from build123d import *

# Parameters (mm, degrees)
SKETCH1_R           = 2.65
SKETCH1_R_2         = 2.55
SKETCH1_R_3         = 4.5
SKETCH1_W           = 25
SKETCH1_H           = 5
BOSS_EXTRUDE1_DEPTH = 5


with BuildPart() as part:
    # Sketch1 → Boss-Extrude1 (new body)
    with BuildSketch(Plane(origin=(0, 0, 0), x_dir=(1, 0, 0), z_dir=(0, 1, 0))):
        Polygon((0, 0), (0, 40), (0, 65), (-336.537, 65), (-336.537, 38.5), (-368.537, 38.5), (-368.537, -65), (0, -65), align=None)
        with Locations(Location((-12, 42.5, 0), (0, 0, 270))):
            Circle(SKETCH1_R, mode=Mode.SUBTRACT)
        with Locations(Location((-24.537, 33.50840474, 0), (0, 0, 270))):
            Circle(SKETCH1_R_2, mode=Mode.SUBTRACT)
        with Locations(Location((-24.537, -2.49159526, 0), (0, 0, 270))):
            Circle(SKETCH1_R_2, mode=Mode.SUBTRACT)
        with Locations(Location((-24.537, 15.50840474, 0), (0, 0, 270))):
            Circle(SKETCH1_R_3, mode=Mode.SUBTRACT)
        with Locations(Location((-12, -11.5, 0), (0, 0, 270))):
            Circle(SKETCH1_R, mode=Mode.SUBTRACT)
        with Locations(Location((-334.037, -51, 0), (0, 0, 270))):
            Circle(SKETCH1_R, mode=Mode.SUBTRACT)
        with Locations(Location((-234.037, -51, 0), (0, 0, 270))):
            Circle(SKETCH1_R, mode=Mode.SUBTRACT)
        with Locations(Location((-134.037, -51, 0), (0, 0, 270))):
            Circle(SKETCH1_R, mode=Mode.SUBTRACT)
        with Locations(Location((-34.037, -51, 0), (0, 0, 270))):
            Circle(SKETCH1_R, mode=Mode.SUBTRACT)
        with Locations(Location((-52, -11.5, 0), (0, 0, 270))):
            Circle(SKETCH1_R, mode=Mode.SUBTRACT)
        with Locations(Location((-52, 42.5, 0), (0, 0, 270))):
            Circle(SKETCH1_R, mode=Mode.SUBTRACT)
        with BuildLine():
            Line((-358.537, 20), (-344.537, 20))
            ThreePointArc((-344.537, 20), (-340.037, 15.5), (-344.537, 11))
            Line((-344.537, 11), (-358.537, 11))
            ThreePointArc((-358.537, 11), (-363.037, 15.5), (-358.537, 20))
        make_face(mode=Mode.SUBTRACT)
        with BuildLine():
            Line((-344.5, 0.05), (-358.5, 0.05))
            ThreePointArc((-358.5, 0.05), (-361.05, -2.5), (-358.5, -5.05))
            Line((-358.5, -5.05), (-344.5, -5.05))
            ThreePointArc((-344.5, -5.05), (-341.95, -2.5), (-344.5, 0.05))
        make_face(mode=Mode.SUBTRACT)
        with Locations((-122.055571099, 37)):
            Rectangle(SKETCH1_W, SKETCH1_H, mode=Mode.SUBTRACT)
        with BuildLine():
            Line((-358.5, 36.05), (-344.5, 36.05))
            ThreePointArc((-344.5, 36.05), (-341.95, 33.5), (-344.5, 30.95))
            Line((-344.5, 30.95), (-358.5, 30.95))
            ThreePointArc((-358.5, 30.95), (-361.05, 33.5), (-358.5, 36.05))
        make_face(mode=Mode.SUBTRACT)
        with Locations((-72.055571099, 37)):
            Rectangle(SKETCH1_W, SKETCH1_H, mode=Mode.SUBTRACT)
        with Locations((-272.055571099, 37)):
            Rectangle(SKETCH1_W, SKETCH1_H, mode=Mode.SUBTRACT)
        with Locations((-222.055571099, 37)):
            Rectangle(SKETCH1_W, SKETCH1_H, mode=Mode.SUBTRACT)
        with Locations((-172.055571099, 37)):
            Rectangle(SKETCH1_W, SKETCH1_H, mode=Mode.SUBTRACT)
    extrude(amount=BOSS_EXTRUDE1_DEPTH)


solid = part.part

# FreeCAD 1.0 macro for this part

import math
import FreeCAD as App
import Part
import Sketcher
Q = App.Units.Quantity

doc = App.newDocument("Part")
params = doc.addObject("Spreadsheet::Sheet", "Params")
for row, (alias, value) in enumerate([
    ("sketch1_diameter", "9 mm"),
    ("sketch1_diameter2", "5.3 mm"),
    ("sketch1_diameter3", "5.1 mm"),
    ("sketch1_width", "32 mm"),
    ("sketch1_width2", "14 mm"),
    ("pad1_length", "5 mm"),
], start=1):
    params.set(f"A{row}", alias)
    params.set(f"B{row}", "=" + value)
    params.setAlias(f"B{row}", alias)

body = doc.addObject("PartDesign::Body", "Body")

sketch1 = body.newObject("Sketcher::SketchObject", "Sketch")
sketch1.AttachmentSupport = (doc.getObject("XZ_Plane"), [""])
sketch1.MapMode = "FlatFace"
sketch1.addGeometry([
    Part.LineSegment(App.Vector(0, -65, 0), App.Vector(-336.537, -65, 0)),
    Part.LineSegment(App.Vector(-336.537, -65, 0), App.Vector(-336.537, -38.5, 0)),
    Part.LineSegment(App.Vector(-336.537, -38.5, 0), App.Vector(-368.537, -38.5, 0)),
    Part.LineSegment(App.Vector(-368.537, -38.5, 0), App.Vector(-368.537, 65, 0)),
    Part.LineSegment(App.Vector(-368.537, 65, 0), App.Vector(0, 65, 0)),
    Part.LineSegment(App.Vector(0, 65, 0), App.Vector(0, -65, 0)),
    Part.Circle(App.Vector(-334.037, 51, 0), App.Vector(0, 0, 1), 2.65),
    Part.Circle(App.Vector(-234.037, 51, 0), App.Vector(0, 0, 1), 2.65),
    Part.Circle(App.Vector(-134.037, 51, 0), App.Vector(0, 0, 1), 2.65),
    Part.Circle(App.Vector(-34.037, 51, 0), App.Vector(0, 0, 1), 2.65),
    Part.Circle(App.Vector(-52, 11.5, 0), App.Vector(0, 0, 1), 2.65),
    Part.Circle(App.Vector(-12, 11.5, 0), App.Vector(0, 0, 1), 2.65),
    Part.LineSegment(App.Vector(-358.5, -0.05, 0), App.Vector(-344.5, -0.05, 0)),
    Part.ArcOfCircle(Part.Circle(App.Vector(-344.5, 2.5, 0), App.Vector(0, 0, 1), 2.55), math.radians(-90), math.radians(90)),
    Part.LineSegment(App.Vector(-344.5, 5.05, 0), App.Vector(-358.5, 5.05, 0)),
    Part.ArcOfCircle(Part.Circle(App.Vector(-358.5, 2.5, 0), App.Vector(0, 0, 1), 2.55), math.radians(90), math.radians(270)),
    Part.ArcOfCircle(Part.Circle(App.Vector(-358.537, -15.5, 0), App.Vector(0, 0, 1), 4.5), math.radians(90), math.radians(270)),
    Part.LineSegment(App.Vector(-358.537, -20, 0), App.Vector(-344.537, -20, 0)),
    Part.ArcOfCircle(Part.Circle(App.Vector(-344.537, -15.5, 0), App.Vector(0, 0, 1), 4.5), math.radians(-90), math.radians(90)),
    Part.LineSegment(App.Vector(-344.537, -11, 0), App.Vector(-358.537, -11, 0)),
    Part.ArcOfCircle(Part.Circle(App.Vector(-358.5, -33.5, 0), App.Vector(0, 0, 1), 2.55), math.radians(90), math.radians(270)),
    Part.LineSegment(App.Vector(-358.5, -36.05, 0), App.Vector(-344.5, -36.05, 0)),
    Part.ArcOfCircle(Part.Circle(App.Vector(-344.5, -33.5, 0), App.Vector(0, 0, 1), 2.55), math.radians(-90), math.radians(90)),
    Part.LineSegment(App.Vector(-344.5, -30.95, 0), App.Vector(-358.5, -30.95, 0)),
    Part.LineSegment(App.Vector(-259.555571, -34.5, 0), App.Vector(-284.555571, -34.5, 0)),
    Part.LineSegment(App.Vector(-284.555571, -34.5, 0), App.Vector(-284.555571, -39.5, 0)),
    Part.LineSegment(App.Vector(-284.555571, -39.5, 0), App.Vector(-259.555571, -39.5, 0)),
    Part.LineSegment(App.Vector(-259.555571, -39.5, 0), App.Vector(-259.555571, -34.5, 0)),
    Part.LineSegment(App.Vector(-209.555571, -34.5, 0), App.Vector(-234.555571, -34.5, 0)),
    Part.LineSegment(App.Vector(-234.555571, -34.5, 0), App.Vector(-234.555571, -39.5, 0)),
    Part.LineSegment(App.Vector(-234.555571, -39.5, 0), App.Vector(-209.555571, -39.5, 0)),
    Part.LineSegment(App.Vector(-209.555571, -39.5, 0), App.Vector(-209.555571, -34.5, 0)),
    Part.Circle(App.Vector(-24.537, 2.491595, 0), App.Vector(0, 0, 1), 2.55),
    Part.Circle(App.Vector(-24.537, -15.508405, 0), App.Vector(0, 0, 1), 4.5),
    Part.LineSegment(App.Vector(-159.555571, -34.5, 0), App.Vector(-184.555571, -34.5, 0)),
    Part.LineSegment(App.Vector(-184.555571, -34.5, 0), App.Vector(-184.555571, -39.5, 0)),
    Part.LineSegment(App.Vector(-184.555571, -39.5, 0), App.Vector(-159.555571, -39.5, 0)),
    Part.LineSegment(App.Vector(-159.555571, -39.5, 0), App.Vector(-159.555571, -34.5, 0)),
    Part.LineSegment(App.Vector(-109.555571, -34.5, 0), App.Vector(-134.555571, -34.5, 0)),
    Part.LineSegment(App.Vector(-134.555571, -34.5, 0), App.Vector(-134.555571, -39.5, 0)),
    Part.LineSegment(App.Vector(-134.555571, -39.5, 0), App.Vector(-109.555571, -39.5, 0)),
    Part.LineSegment(App.Vector(-109.555571, -39.5, 0), App.Vector(-109.555571, -34.5, 0)),
    Part.LineSegment(App.Vector(-59.555571, -34.5, 0), App.Vector(-84.555571, -34.5, 0)),
    Part.LineSegment(App.Vector(-84.555571, -34.5, 0), App.Vector(-84.555571, -39.5, 0)),
    Part.LineSegment(App.Vector(-84.555571, -39.5, 0), App.Vector(-59.555571, -39.5, 0)),
    Part.LineSegment(App.Vector(-59.555571, -39.5, 0), App.Vector(-59.555571, -34.5, 0)),
    Part.Circle(App.Vector(-24.537, -33.508405, 0), App.Vector(0, 0, 1), 2.55),
    Part.Circle(App.Vector(-52, -42.5, 0), App.Vector(0, 0, 1), 2.65),
    Part.Circle(App.Vector(-12, -42.5, 0), App.Vector(0, 0, 1), 2.65),
], False)
sketch1.addConstraint([
    Sketcher.Constraint("Coincident", 0, 2, 1, 1),
    Sketcher.Constraint("Coincident", 1, 2, 2, 1),
    Sketcher.Constraint("Coincident", 2, 2, 3, 1),
    Sketcher.Constraint("Coincident", 3, 2, 4, 1),
    Sketcher.Constraint("Coincident", 4, 2, 5, 1),
    Sketcher.Constraint("Coincident", 5, 2, 0, 1),
    Sketcher.Constraint("Tangent", 12, 2, 13, 1),
    Sketcher.Constraint("Tangent", 13, 2, 14, 1),
    Sketcher.Constraint("Tangent", 14, 2, 15, 1),
    Sketcher.Constraint("Tangent", 15, 2, 12, 1),
    Sketcher.Constraint("Tangent", 16, 2, 17, 1),
    Sketcher.Constraint("Tangent", 17, 2, 18, 1),
    Sketcher.Constraint("Tangent", 18, 2, 19, 1),
    Sketcher.Constraint("Tangent", 19, 2, 16, 1),
    Sketcher.Constraint("Tangent", 20, 2, 21, 1),
    Sketcher.Constraint("Tangent", 21, 2, 22, 1),
    Sketcher.Constraint("Tangent", 22, 2, 23, 1),
    Sketcher.Constraint("Tangent", 23, 2, 20, 1),
    Sketcher.Constraint("Coincident", 24, 2, 25, 1),
    Sketcher.Constraint("Coincident", 25, 2, 26, 1),
    Sketcher.Constraint("Coincident", 26, 2, 27, 1),
    Sketcher.Constraint("Coincident", 27, 2, 24, 1),
    Sketcher.Constraint("Coincident", 28, 2, 29, 1),
    Sketcher.Constraint("Coincident", 29, 2, 30, 1),
    Sketcher.Constraint("Coincident", 30, 2, 31, 1),
    Sketcher.Constraint("Coincident", 31, 2, 28, 1),
    Sketcher.Constraint("Coincident", 34, 2, 35, 1),
    Sketcher.Constraint("Coincident", 35, 2, 36, 1),
    Sketcher.Constraint("Coincident", 36, 2, 37, 1),
    Sketcher.Constraint("Coincident", 37, 2, 34, 1),
    Sketcher.Constraint("Coincident", 38, 2, 39, 1),
    Sketcher.Constraint("Coincident", 39, 2, 40, 1),
    Sketcher.Constraint("Coincident", 40, 2, 41, 1),
    Sketcher.Constraint("Coincident", 41, 2, 38, 1),
    Sketcher.Constraint("Coincident", 42, 2, 43, 1),
    Sketcher.Constraint("Coincident", 43, 2, 44, 1),
    Sketcher.Constraint("Coincident", 44, 2, 45, 1),
    Sketcher.Constraint("Coincident", 45, 2, 42, 1),
    Sketcher.Constraint("Horizontal", 0),
    Sketcher.Constraint("Vertical", 1),
    Sketcher.Constraint("Horizontal", 2),
    Sketcher.Constraint("Vertical", 3),
    Sketcher.Constraint("Horizontal", 4),
    Sketcher.Constraint("Vertical", 5),
    Sketcher.Constraint("Horizontal", 12),
    Sketcher.Constraint("Horizontal", 14),
    Sketcher.Constraint("Horizontal", 17),
    Sketcher.Constraint("Horizontal", 19),
    Sketcher.Constraint("Horizontal", 21),
    Sketcher.Constraint("Horizontal", 23),
    Sketcher.Constraint("Horizontal", 24),
    Sketcher.Constraint("Vertical", 25),
    Sketcher.Constraint("Horizontal", 26),
    Sketcher.Constraint("Vertical", 27),
    Sketcher.Constraint("Horizontal", 28),
    Sketcher.Constraint("Vertical", 29),
    Sketcher.Constraint("Horizontal", 30),
    Sketcher.Constraint("Vertical", 31),
    Sketcher.Constraint("Horizontal", 34),
    Sketcher.Constraint("Vertical", 35),
    Sketcher.Constraint("Horizontal", 36),
    Sketcher.Constraint("Vertical", 37),
    Sketcher.Constraint("Horizontal", 38),
    Sketcher.Constraint("Vertical", 39),
    Sketcher.Constraint("Horizontal", 40),
    Sketcher.Constraint("Vertical", 41),
    Sketcher.Constraint("Horizontal", 42),
    Sketcher.Constraint("Vertical", 43),
    Sketcher.Constraint("Horizontal", 44),
    Sketcher.Constraint("Vertical", 45),
    Sketcher.Constraint("Equal", 6, 7),
    Sketcher.Constraint("Equal", 7, 8),
    Sketcher.Constraint("Equal", 8, 9),
    Sketcher.Constraint("Equal", 9, 10),
    Sketcher.Constraint("Equal", 10, 11),
    Sketcher.Constraint("Equal", 15, 20),
    Sketcher.Constraint("Equal", 22, 32),
    Sketcher.Constraint("Equal", 18, 33),
    Sketcher.Constraint("Equal", 32, 46),
    Sketcher.Constraint("Equal", 11, 47),
    Sketcher.Constraint("Equal", 47, 48),
    Sketcher.Constraint("Symmetric", 4, 2, 5, 2, -1, 1),
    Sketcher.Constraint("Horizontal", 6, 3, 7, 3),
    Sketcher.Constraint("Horizontal", 7, 3, 8, 3),
    Sketcher.Constraint("Horizontal", 8, 3, 9, 3),
    Sketcher.Constraint("Horizontal", 10, 3, 11, 3),
    Sketcher.Constraint("Horizontal", 47, 3, 48, 3),
    Sketcher.Constraint("Horizontal", 27, 2, 28, 2),
    Sketcher.Constraint("Horizontal", 26, 2, 29, 2),
    Sketcher.Constraint("Horizontal", 31, 2, 34, 2),
    Sketcher.Constraint("Horizontal", 30, 2, 35, 2),
    Sketcher.Constraint("Horizontal", 37, 2, 38, 2),
    Sketcher.Constraint("Horizontal", 36, 2, 39, 2),
    Sketcher.Constraint("Horizontal", 41, 2, 42, 2),
    Sketcher.Constraint("Horizontal", 40, 2, 43, 2),
    Sketcher.Constraint("Vertical", 15, 3, 20, 3),
    Sketcher.Constraint("Vertical", 13, 3, 22, 3),
    Sketcher.Constraint("Vertical", 32, 3, 33, 3),
    Sketcher.Constraint("Vertical", 33, 3, 46, 3),
    Sketcher.Constraint("Vertical", 10, 3, 47, 3),
    Sketcher.Constraint("Vertical", 11, 3, 48, 3),
    Sketcher.Constraint("Equal", 14, 17),
    Sketcher.Constraint("Equal", 26, 28),
    Sketcher.Constraint("Equal", 30, 34),
    Sketcher.Constraint("Equal", 36, 38),
    Sketcher.Constraint("Equal", 40, 42),
    Sketcher.Constraint("Diameter", 33, Q("9 mm")),
    Sketcher.Constraint("Diameter", 6, Q("5.3 mm")),
    Sketcher.Constraint("Diameter", 32, Q("5.1 mm")),
    Sketcher.Constraint("DistanceX", 2, 2, 2, 1, Q("32 mm")),
    Sketcher.Constraint("DistanceX", 12, 1, 12, 2, Q("14 mm")),
    Sketcher.Constraint("DistanceX", 24, 2, 24, 1, Q("25 mm")),
    Sketcher.Constraint("DistanceY", 5, 2, 5, 1, Q("130 mm")),
    Sketcher.Constraint("DistanceY", 25, 2, 25, 1, Q("5 mm")),
    Sketcher.Constraint("DistanceY", 1, 1, 1, 2, Q("26.5 mm")),
    Sketcher.Constraint("DistanceY", -1, 1, 6, 3, Q("51 mm")),
    Sketcher.Constraint("DistanceX", 10, 3, -1, 1, Q("52 mm")),
    Sketcher.Constraint("DistanceX", 11, 3, -1, 1, Q("12 mm")),
    Sketcher.Constraint("DistanceY", 16, 2, -1, 1, Q("20 mm")),
    Sketcher.Constraint("DistanceX", 6, 3, 7, 3, Q("100 mm")),
    Sketcher.Constraint("DistanceX", 7, 3, 8, 3, Q("100 mm")),
    Sketcher.Constraint("DistanceX", 8, 3, 9, 3, Q("100 mm")),
    Sketcher.Constraint("DistanceY", 13, 3, 10, 3, Q("9 mm")),
    Sketcher.Constraint("DistanceY", 16, 3, 15, 3, Q("18 mm")),
    Sketcher.Constraint("DistanceY", 20, 3, 16, 3, Q("18 mm")),
    Sketcher.Constraint("DistanceY", 33, 3, 32, 3, Q("18 mm")),
    Sketcher.Constraint("DistanceY", 46, 3, 33, 3, Q("18 mm")),
    Sketcher.Constraint("DistanceY", 47, 3, 10, 3, Q("54 mm")),
    Sketcher.Constraint("DistanceX", 18, 3, 0, 2, Q("8 mm")),
    Sketcher.Constraint("DistanceY", 1, 2, 24, 2, Q("4 mm")),
    Sketcher.Constraint("DistanceX", 27, 2, 28, 2, Q("25 mm")),
    Sketcher.Constraint("DistanceX", 31, 2, 34, 2, Q("25 mm")),
    Sketcher.Constraint("DistanceX", 37, 2, 38, 2, Q("25 mm")),
    Sketcher.Constraint("DistanceX", 41, 2, 42, 2, Q("25 mm")),
    Sketcher.Constraint("DistanceX", 13, 3, -1, 1, Q("344.5 mm")),
    Sketcher.Constraint("DistanceX", 16, 3, 6, 3, Q("24.5 mm")),
    Sketcher.Constraint("DistanceX", 9, 3, 32, 3, Q("9.5 mm")),
    Sketcher.Constraint("DistanceX", 0, 2, 0, 1, Q("336.537 mm")),
    Sketcher.Constraint("DistanceX", 24, 2, -1, 1, Q("284.555571 mm")),
    Sketcher.Constraint("DistanceY", -1, 1, 32, 3, Q("2.491595 mm")),
])
sketch1.setExpression("Constraints[106]", "Params.sketch1_diameter")
sketch1.setExpression("Constraints[107]", "Params.sketch1_diameter2")
sketch1.setExpression("Constraints[108]", "Params.sketch1_diameter3")
sketch1.setExpression("Constraints[109]", "Params.sketch1_width")
sketch1.setExpression("Constraints[110]", "Params.sketch1_width2")
pad1 = body.newObject("PartDesign::Pad", "Pad")
pad1.Profile = sketch1
pad1.setExpression("Length", "Params.pad1_length")
pad1.Reversed = True

doc.recompute()
